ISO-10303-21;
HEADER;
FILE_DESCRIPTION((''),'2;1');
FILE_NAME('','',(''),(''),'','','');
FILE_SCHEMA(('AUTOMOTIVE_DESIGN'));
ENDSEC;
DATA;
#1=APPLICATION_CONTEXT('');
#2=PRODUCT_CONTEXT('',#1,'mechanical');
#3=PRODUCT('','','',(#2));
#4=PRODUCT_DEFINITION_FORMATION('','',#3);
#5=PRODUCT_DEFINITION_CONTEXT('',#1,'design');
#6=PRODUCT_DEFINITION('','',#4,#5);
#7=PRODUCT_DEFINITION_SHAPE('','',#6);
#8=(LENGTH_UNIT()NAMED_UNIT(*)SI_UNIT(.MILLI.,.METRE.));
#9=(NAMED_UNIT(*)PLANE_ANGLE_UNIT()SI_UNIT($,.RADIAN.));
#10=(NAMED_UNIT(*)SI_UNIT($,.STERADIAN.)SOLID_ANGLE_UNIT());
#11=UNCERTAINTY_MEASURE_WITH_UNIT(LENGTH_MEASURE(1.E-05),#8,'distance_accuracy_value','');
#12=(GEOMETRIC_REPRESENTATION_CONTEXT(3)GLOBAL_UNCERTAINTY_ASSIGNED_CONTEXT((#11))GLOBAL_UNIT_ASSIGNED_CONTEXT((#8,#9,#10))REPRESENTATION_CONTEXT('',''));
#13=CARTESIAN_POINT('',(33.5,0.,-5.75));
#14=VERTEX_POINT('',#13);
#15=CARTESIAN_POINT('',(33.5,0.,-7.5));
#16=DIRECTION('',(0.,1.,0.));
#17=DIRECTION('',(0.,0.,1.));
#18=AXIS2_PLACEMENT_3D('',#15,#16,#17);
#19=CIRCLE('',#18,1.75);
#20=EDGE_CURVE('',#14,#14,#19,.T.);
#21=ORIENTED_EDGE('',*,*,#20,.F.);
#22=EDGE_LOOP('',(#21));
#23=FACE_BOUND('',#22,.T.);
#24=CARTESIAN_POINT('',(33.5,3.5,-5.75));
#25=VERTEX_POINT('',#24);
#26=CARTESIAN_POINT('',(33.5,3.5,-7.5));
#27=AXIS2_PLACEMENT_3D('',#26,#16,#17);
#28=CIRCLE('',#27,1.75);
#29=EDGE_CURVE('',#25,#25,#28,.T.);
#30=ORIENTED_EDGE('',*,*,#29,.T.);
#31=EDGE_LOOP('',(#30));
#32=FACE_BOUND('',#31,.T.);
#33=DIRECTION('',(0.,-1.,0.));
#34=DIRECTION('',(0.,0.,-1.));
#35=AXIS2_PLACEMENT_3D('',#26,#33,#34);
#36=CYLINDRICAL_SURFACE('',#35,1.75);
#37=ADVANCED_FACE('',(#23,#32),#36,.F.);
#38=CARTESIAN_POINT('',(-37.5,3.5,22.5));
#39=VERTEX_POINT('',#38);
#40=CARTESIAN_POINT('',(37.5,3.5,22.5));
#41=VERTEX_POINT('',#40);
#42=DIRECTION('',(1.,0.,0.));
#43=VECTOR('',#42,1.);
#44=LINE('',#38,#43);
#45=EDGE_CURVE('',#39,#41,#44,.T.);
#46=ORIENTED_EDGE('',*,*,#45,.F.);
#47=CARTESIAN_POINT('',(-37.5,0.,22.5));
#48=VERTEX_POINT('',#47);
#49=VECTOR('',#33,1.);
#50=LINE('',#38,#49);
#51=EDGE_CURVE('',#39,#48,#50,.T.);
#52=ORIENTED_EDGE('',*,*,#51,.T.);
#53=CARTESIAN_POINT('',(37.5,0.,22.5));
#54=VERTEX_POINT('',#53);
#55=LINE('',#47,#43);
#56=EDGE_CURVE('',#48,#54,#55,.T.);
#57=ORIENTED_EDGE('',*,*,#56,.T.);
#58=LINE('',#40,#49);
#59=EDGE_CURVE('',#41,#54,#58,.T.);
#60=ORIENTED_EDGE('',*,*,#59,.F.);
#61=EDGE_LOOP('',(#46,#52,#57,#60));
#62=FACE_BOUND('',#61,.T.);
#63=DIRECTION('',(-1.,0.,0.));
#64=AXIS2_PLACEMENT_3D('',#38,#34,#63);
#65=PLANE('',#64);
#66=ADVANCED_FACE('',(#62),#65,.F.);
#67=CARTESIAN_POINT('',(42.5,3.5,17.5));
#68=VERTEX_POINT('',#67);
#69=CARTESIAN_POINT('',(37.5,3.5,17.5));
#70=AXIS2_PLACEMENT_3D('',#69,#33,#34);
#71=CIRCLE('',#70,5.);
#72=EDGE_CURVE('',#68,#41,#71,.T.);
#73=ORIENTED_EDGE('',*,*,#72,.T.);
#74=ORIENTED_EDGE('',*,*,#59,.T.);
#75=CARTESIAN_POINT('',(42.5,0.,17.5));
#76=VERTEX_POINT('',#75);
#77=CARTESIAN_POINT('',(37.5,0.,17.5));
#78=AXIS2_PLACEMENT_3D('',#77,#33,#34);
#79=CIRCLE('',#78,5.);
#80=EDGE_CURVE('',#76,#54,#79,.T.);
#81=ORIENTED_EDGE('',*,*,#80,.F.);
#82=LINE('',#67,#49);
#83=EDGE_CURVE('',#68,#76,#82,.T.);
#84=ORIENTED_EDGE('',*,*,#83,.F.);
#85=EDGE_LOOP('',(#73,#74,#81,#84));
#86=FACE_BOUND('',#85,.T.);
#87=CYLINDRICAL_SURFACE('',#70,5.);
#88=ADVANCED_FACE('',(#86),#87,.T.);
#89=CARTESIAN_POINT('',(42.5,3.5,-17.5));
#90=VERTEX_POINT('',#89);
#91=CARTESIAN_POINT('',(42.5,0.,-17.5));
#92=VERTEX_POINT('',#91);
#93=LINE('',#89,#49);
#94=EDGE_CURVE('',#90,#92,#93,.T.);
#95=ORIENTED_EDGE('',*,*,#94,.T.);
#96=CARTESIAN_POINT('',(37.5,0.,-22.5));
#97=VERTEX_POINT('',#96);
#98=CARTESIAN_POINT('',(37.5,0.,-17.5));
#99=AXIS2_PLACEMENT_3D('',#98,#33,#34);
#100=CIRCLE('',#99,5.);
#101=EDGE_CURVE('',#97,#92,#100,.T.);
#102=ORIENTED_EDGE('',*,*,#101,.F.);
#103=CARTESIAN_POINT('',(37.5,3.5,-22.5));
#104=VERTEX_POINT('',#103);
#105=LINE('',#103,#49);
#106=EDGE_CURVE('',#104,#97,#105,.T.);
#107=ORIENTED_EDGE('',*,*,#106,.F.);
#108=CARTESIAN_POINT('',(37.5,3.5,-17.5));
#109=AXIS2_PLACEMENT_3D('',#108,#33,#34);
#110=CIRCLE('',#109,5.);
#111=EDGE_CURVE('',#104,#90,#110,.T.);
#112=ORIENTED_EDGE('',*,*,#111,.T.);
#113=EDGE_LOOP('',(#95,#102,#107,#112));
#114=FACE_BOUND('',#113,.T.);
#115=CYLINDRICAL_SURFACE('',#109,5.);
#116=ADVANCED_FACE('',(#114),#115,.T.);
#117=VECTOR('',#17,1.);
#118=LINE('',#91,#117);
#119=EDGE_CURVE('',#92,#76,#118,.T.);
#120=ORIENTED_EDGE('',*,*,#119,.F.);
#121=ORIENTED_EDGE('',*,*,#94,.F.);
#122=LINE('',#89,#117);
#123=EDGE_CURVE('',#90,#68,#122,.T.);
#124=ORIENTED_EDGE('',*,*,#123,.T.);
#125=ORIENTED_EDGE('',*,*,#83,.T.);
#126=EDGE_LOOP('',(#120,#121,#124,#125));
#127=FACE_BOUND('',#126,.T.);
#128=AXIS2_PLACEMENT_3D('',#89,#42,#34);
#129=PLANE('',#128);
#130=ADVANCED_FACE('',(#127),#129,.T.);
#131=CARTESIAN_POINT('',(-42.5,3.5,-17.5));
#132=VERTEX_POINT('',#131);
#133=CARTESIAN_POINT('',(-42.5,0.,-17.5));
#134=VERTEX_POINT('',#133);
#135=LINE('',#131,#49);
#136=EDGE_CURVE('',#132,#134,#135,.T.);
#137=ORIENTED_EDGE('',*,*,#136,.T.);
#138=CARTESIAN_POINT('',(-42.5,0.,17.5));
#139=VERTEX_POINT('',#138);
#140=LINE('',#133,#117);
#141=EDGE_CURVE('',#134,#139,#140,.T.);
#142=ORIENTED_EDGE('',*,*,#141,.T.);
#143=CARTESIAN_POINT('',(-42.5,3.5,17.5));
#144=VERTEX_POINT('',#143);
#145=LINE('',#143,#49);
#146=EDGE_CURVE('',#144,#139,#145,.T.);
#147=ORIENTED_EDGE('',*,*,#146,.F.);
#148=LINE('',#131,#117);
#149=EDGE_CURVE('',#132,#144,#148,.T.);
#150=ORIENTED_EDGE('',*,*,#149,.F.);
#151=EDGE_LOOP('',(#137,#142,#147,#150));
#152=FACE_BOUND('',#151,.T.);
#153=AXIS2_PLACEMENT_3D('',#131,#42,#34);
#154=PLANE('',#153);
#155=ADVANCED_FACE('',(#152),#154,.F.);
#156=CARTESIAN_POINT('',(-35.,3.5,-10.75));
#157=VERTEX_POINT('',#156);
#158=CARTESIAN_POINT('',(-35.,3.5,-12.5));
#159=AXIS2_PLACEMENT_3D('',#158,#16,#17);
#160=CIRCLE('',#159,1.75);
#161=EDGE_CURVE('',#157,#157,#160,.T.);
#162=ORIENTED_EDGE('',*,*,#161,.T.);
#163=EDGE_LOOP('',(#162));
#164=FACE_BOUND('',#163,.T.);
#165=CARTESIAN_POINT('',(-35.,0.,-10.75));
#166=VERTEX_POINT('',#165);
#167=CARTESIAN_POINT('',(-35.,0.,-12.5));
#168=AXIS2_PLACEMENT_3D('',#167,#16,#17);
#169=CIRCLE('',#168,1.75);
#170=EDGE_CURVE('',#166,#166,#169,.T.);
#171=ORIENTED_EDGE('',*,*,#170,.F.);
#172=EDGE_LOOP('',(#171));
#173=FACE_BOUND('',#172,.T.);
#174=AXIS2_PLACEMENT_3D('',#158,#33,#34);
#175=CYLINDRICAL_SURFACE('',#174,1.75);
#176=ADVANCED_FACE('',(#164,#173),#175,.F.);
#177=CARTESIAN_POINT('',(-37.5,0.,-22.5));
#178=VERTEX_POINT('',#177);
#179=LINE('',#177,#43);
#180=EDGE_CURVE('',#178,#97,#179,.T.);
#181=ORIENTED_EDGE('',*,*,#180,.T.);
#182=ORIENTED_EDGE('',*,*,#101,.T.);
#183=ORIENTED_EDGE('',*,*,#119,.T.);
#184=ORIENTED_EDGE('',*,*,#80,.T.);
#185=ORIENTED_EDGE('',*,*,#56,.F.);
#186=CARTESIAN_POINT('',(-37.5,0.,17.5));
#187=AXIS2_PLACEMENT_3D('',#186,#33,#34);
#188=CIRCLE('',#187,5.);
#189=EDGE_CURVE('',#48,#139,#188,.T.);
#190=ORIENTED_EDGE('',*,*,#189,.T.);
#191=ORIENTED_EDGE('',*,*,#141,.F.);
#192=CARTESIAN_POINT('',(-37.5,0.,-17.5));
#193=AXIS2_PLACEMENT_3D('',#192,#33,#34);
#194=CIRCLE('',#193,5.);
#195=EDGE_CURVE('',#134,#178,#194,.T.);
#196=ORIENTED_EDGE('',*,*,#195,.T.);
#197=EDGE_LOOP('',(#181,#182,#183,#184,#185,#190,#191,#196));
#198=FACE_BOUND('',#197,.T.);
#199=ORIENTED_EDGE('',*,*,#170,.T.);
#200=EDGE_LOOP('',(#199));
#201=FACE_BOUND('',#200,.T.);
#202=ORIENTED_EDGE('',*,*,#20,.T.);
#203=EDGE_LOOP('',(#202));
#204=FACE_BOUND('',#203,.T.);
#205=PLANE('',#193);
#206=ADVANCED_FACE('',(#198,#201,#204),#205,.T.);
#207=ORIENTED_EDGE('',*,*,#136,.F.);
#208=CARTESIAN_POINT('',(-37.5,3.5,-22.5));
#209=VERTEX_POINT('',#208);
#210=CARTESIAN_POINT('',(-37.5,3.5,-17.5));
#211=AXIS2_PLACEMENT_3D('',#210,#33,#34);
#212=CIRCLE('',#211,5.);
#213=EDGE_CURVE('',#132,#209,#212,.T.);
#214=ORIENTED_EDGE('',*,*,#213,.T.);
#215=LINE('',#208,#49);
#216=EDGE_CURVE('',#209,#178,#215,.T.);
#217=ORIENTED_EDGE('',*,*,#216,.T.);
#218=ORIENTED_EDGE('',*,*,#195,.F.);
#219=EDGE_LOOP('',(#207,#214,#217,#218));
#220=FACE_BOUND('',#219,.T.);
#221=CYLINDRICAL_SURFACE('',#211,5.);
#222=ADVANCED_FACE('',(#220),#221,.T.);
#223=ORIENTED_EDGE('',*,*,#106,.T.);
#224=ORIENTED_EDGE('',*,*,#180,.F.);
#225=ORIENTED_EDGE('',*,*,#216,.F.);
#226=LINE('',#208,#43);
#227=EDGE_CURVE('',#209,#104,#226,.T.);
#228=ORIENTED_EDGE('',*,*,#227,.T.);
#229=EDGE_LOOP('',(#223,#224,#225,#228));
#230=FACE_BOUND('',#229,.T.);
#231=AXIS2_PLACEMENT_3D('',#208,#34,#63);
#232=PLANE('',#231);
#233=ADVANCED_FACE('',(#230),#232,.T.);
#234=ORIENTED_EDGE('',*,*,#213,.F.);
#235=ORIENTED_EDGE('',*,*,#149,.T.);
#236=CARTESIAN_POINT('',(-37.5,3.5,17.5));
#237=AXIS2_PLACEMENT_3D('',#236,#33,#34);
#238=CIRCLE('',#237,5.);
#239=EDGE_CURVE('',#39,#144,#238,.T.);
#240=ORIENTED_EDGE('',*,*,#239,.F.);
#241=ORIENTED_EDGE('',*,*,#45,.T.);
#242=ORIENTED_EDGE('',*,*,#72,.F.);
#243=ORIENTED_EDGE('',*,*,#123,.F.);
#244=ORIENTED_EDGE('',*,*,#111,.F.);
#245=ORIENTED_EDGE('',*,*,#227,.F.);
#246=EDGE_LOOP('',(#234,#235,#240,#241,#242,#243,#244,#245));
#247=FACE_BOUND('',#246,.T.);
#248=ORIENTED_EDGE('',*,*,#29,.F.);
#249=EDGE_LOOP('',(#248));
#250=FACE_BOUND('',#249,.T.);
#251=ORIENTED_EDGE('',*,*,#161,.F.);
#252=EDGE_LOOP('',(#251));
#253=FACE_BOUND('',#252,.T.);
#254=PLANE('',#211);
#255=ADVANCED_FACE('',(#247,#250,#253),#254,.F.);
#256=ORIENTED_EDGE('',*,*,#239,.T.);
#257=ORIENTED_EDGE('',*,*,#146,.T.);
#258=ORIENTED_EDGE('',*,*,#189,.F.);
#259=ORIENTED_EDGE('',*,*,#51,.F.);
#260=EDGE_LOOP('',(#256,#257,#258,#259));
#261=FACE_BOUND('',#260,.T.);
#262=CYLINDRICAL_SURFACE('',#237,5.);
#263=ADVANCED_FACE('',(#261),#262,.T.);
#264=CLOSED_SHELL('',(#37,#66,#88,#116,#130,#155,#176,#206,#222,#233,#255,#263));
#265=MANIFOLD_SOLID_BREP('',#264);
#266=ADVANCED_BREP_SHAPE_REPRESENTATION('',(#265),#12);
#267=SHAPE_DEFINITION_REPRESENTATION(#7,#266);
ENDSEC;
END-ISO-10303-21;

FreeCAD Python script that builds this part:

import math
import FreeCAD as App
import Part
import Sketcher

V = App.Vector

doc = App.newDocument("Part")
body = doc.addObject("PartDesign::Body", "Body")

# Sketch on XZ plane
sketch1 = doc.addObject("Sketcher::SketchObject", "Sketch")
body.addObject(sketch1)
sketch1.AttachmentSupport = (doc.XZ_Plane, [""])
sketch1.MapMode = "FlatFace"
sketch1.addGeometry([
    Part.LineSegment(V(37.5, -22.5, 0), V(-37.5, -22.5, 0)),  # 0
    Part.ArcOfCircle(Part.Circle(V(-37.5, -17.5, 0), V(0, 0, 1), 5), math.radians(180), math.radians(270)),  # 1
    Part.LineSegment(V(-42.5, -17.5, 0), V(-42.5, 17.5, 0)),  # 2
    Part.ArcOfCircle(Part.Circle(V(-37.5, 17.5, 0), V(0, 0, 1), 5), math.radians(90), math.radians(180)),  # 3
    Part.LineSegment(V(-37.5, 22.5, 0), V(37.5, 22.5, 0)),  # 4
    Part.ArcOfCircle(Part.Circle(V(37.5, 17.5, 0), V(0, 0, 1), 5), math.radians(0), math.radians(90)),  # 5
    Part.LineSegment(V(42.5, 17.5, 0), V(42.5, -17.5, 0)),  # 6
    Part.ArcOfCircle(Part.Circle(V(37.5, -17.5, 0), V(0, 0, 1), 5), math.radians(-90), math.radians(0)),  # 7
    Part.Circle(V(33.5, -7.5, 0), V(0, 0, 1), 1.8),  # 8
    Part.Circle(V(-35, -12.5, 0), V(0, 0, 1), 1.8),  # 9
], False)
sketch1.addConstraint([
    Sketcher.Constraint("Tangent", 0, 2, 1, 2),
    Sketcher.Constraint("Tangent", 1, 1, 2, 1),
    Sketcher.Constraint("Tangent", 2, 2, 3, 2),
    Sketcher.Constraint("Tangent", 3, 1, 4, 1),
    Sketcher.Constraint("Tangent", 4, 2, 5, 2),
    Sketcher.Constraint("Tangent", 5, 1, 6, 1),
    Sketcher.Constraint("Tangent", 6, 2, 7, 2),
    Sketcher.Constraint("Tangent", 7, 1, 0, 1),
    Sketcher.Constraint("Horizontal", 0),
    Sketcher.Constraint("Vertical", 2),
    Sketcher.Constraint("Horizontal", 4),
    Sketcher.Constraint("Vertical", 6),
    Sketcher.Constraint("Equal", 1, 3),
    Sketcher.Constraint("Equal", 3, 5),
    Sketcher.Constraint("Equal", 5, 7),
    Sketcher.Constraint("Equal", 8, 9),
    Sketcher.Constraint("Symmetric", 1, 3, 5, 3, -1, 1),
    Sketcher.Constraint("Radius", 1, 5.0),
    Sketcher.Constraint("Diameter", 8, 3.5),
    Sketcher.Constraint("DistanceX", 0, 2, 0, 1, 75.0),
    Sketcher.Constraint("DistanceY", 2, 1, 2, 2, 35.0),
    Sketcher.Constraint("DistanceX", 9, 3, -1, 1, 35.0),
    Sketcher.Constraint("DistanceX", 8, 3, 7, 3, 4.0),
    Sketcher.Constraint("DistanceY", 7, 3, 8, 3, 10.0),
    Sketcher.Constraint("DistanceY", 1, 3, 9, 3, 5.0),
])
pad1 = doc.addObject("PartDesign::Pad", "Pad")
body.addObject(pad1)
pad1.Profile = sketch1
pad1.Length = 3.5
pad1.Reversed = True

doc.recompute()
